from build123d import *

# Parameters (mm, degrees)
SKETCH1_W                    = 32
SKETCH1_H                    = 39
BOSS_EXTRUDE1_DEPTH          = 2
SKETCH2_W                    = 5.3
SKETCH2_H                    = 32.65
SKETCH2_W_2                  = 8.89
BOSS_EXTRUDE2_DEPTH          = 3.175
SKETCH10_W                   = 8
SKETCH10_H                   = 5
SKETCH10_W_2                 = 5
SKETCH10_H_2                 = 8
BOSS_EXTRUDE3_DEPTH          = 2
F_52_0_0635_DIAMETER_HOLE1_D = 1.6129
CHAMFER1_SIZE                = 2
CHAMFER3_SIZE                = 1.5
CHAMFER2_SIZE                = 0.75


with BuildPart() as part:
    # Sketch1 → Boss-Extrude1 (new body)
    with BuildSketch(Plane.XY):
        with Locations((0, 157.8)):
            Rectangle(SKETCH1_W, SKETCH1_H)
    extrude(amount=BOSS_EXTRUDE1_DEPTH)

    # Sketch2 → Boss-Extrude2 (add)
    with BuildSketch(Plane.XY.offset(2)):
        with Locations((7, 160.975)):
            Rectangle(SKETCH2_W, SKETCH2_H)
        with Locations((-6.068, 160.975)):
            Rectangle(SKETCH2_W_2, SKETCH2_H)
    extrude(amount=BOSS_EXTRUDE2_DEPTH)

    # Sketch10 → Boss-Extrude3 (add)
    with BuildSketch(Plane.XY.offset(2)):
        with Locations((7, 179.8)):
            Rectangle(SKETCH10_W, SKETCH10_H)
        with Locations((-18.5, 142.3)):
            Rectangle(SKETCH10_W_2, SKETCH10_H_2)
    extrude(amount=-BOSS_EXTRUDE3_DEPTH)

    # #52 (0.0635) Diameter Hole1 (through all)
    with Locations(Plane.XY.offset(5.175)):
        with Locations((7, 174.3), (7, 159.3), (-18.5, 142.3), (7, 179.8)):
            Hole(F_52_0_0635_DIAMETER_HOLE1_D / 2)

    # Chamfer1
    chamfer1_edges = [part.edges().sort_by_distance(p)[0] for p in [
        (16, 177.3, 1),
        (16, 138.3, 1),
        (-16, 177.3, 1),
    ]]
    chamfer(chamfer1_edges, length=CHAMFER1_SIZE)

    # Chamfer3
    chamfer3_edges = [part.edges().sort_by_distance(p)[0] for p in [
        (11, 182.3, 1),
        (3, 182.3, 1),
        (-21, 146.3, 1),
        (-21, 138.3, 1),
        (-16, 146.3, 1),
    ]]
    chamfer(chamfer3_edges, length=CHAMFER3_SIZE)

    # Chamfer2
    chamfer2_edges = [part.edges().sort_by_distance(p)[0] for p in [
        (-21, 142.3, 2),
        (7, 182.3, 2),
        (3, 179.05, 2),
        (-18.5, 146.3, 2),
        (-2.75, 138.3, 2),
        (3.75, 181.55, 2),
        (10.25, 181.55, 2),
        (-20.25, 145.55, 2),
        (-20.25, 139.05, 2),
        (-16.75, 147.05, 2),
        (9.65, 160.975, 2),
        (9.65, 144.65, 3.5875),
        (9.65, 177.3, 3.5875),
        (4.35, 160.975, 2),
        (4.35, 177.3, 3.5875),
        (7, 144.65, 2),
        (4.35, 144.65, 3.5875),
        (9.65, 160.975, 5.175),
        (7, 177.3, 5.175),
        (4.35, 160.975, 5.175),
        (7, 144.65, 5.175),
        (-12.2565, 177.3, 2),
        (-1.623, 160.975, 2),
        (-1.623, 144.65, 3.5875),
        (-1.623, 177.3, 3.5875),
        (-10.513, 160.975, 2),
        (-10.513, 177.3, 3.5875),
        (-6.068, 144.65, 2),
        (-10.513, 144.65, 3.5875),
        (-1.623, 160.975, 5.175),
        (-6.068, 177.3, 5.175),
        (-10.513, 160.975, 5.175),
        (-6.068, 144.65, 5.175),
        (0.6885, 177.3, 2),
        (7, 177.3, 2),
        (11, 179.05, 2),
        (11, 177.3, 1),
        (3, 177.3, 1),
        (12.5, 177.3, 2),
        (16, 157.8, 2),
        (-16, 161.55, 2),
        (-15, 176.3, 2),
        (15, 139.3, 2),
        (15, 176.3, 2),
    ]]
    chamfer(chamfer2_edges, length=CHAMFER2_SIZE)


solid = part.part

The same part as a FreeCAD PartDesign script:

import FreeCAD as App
import Part
import Sketcher

V = App.Vector
Q = App.Units.Quantity


def edges_at(feature, points):
    """Names of the edges that pass closest to the given points."""
    edges = feature.Shape.Edges
    near = lambda p: min(range(len(edges)), key=lambda i: edges[i].distToShape(Part.Vertex(*p))[0])
    return sorted({f"Edge{near(p) + 1}" for p in points})


def add_polygon(sketch, points):
    """Adds a closed chain of lines whose ends are joined by coincident constraints."""
    first, n = sketch.GeometryCount, len(points)
    for a, b in zip(points, points[1:] + points[:1]):
        sketch.addGeometry(Part.LineSegment(App.Vector(*a, 0), App.Vector(*b, 0)), False)
    for i in range(n):
        sketch.addConstraint(Sketcher.Constraint("Coincident", first + i, 2, first + (i + 1) % n, 1))

doc = App.newDocument("Part")
body = doc.addObject("PartDesign::Body", "Body")

# Sketch on XY plane
sketch1 = body.newObject("Sketcher::SketchObject", "Sketch")
sketch1.AttachmentSupport = (doc.getObject("XY_Plane"), [""])
sketch1.MapMode = "FlatFace"
add_polygon(sketch1, [(-16, 177.3), (-16, 138.3), (16, 138.3), (16, 177.3)])  # lines 0-3
sketch1.addConstraint([
    Sketcher.Constraint("Vertical", 0),
    Sketcher.Constraint("Horizontal", 1),
    Sketcher.Constraint("Vertical", 2),
    Sketcher.Constraint("Horizontal", 3),
    Sketcher.Constraint("DistanceX", 1, 1, 1, 2, Q("32 mm")),
    Sketcher.Constraint("DistanceY", 0, 2, 0, 1, Q("39 mm")),
    Sketcher.Constraint("DistanceX", 0, 2, -1, 1, Q("16 mm")),
    Sketcher.Constraint("DistanceY", -1, 1, 0, 2, Q("138.3 mm")),
])
pad1 = body.newObject("PartDesign::Pad", "Pad")
pad1.Profile = sketch1
pad1.Length = 2

# Sketch on XY plane
sketch2 = body.newObject("Sketcher::SketchObject", "Sketch001")
sketch2.AttachmentSupport = (doc.getObject("XY_Plane"), [""])
sketch2.MapMode = "FlatFace"
sketch2.AttachmentOffset = App.Placement(V(0, 0, 2), App.Rotation())
add_polygon(sketch2, [(4.35, 177.3), (4.35, 144.65), (9.65, 144.65), (9.65, 177.3)])  # lines 0-3
add_polygon(sketch2, [(-10.513, 177.3), (-10.513, 144.65), (-1.623, 144.65), (-1.623, 177.3)])  # lines 4-7
sketch2.addConstraint([
    Sketcher.Constraint("Vertical", 0),
    Sketcher.Constraint("Horizontal", 1),
    Sketcher.Constraint("Vertical", 2),
    Sketcher.Constraint("Horizontal", 3),
    Sketcher.Constraint("Vertical", 4),
    Sketcher.Constraint("Horizontal", 5),
    Sketcher.Constraint("Vertical", 6),
    Sketcher.Constraint("Horizontal", 7),
    Sketcher.Constraint("Horizontal", 1, 2, 4, 2),
    Sketcher.Constraint("Horizontal", 3, 2, 6, 2),
    Sketcher.Constraint("DistanceX", 1, 1, 1, 2, Q("5.3 mm")),
    Sketcher.Constraint("DistanceX", 5, 1, 5, 2, Q("8.89 mm")),
    Sketcher.Constraint("DistanceY", 0, 2, 0, 1, Q("32.65 mm")),
    Sketcher.Constraint("DistanceY", -1, 1, 2, 2, Q("177.3 mm")),
    Sketcher.Constraint("DistanceX", -1, 1, 0, 2, Q("4.35 mm")),
    Sketcher.Constraint("DistanceX", 4, 2, -1, 1, Q("10.513 mm")),
])
pad2 = body.newObject("PartDesign::Pad", "Pad001")
pad2.Profile = sketch2
pad2.Length = 3.175

# Sketch on XY plane
sketch3 = body.newObject("Sketcher::SketchObject", "Sketch002")
sketch3.AttachmentSupport = (doc.getObject("XY_Plane"), [""])
sketch3.MapMode = "FlatFace"
sketch3.AttachmentOffset = App.Placement(V(0, 0, 2), App.Rotation())
add_polygon(sketch3, [(3, 182.3), (3, 177.3), (11, 177.3), (11, 182.3)])  # lines 0-3
add_polygon(sketch3, [(-21, 146.3), (-21, 138.3), (-16, 138.3), (-16, 146.3)])  # lines 4-7
sketch3.addConstraint([
    Sketcher.Constraint("Vertical", 0),
    Sketcher.Constraint("Horizontal", 1),
    Sketcher.Constraint("Vertical", 2),
    Sketcher.Constraint("Horizontal", 3),
    Sketcher.Constraint("Vertical", 4),
    Sketcher.Constraint("Horizontal", 5),
    Sketcher.Constraint("Vertical", 6),
    Sketcher.Constraint("Horizontal", 7),
    Sketcher.Constraint("Equal", 7, 0),
    Sketcher.Constraint("Equal", 3, 4),
    Sketcher.Constraint("DistanceX", 1, 1, 1, 2, Q("8 mm")),
    Sketcher.Constraint("DistanceX", 5, 1, 5, 2, Q("5 mm")),
    Sketcher.Constraint("DistanceX", -1, 1, 0, 2, Q("3 mm")),
    Sketcher.Constraint("DistanceX", 4, 2, -1, 1, Q("21 mm")),
    Sketcher.Constraint("DistanceY", 4, 2, 0, 2, Q("39 mm")),
    Sketcher.Constraint("DistanceY", -1, 1, 0, 2, Q("177.3 mm")),
])
pad3 = body.newObject("PartDesign::Pad", "Pad002")
pad3.Profile = sketch3
pad3.Length = 2
pad3.Reversed = True

# Sketch on XY plane
sketch4 = body.newObject("Sketcher::SketchObject", "Sketch003")
sketch4.AttachmentSupport = (doc.getObject("XY_Plane"), [""])
sketch4.MapMode = "FlatFace"
sketch4.AttachmentOffset = App.Placement(V(0, 0, 5.175), App.Rotation())
sketch4.addGeometry([
    Part.Circle(V(7, 174.3, 0), V(0, 0, 1), 0.80645),
    Part.Circle(V(7, 159.3, 0), V(0, 0, 1), 0.80645),
    Part.Circle(V(-18.5, 142.3, 0), V(0, 0, 1), 0.80645),
    Part.Circle(V(7, 179.8, 0), V(0, 0, 1), 0.80645),
], False)
sketch4.addConstraint([
    Sketcher.Constraint("Equal", 0, 1),
    Sketcher.Constraint("Equal", 1, 2),
    Sketcher.Constraint("Equal", 2, 3),
    Sketcher.Constraint("Vertical", 0, 3, 1, 3),
    Sketcher.Constraint("Vertical", 1, 3, 3, 3),
    Sketcher.Constraint("DistanceX", -1, 1, 0, 3, Q("7 mm")),
    Sketcher.Constraint("DistanceY", 1, 3, 0, 3, Q("15 mm")),
    Sketcher.Constraint("DistanceY", 2, 3, 1, 3, Q("17 mm")),
    Sketcher.Constraint("Diameter", 0, Q("1.6129 mm")),
    Sketcher.Constraint("DistanceY", -1, 1, 0, 3, Q("174.3 mm")),
    Sketcher.Constraint("DistanceX", 2, 3, -1, 1, Q("18.5 mm")),
    Sketcher.Constraint("DistanceY", -1, 1, 3, 3, Q("179.8 mm")),
])
doc.recompute()
hole = body.newObject("PartDesign::Hole", "Hole")
hole.Profile = sketch4
hole.ThreadType = "None"
hole.Diameter = 1.6129
hole.DepthType = "ThroughAll"
doc.recompute()

chamfer = body.newObject("PartDesign::Chamfer", "Chamfer")
chamfer.Base = (hole, edges_at(hole, [(16, 177.3, 1), (16, 138.3, 1), (-16, 177.3, 1)]))
chamfer.Size = 2
doc.recompute()

chamfer2 = body.newObject("PartDesign::Chamfer", "Chamfer001")
chamfer2.Base = (chamfer, edges_at(chamfer, [
    (11, 182.3, 1),
    (3, 182.3, 1),
    (-21, 146.3, 1),
    (-21, 138.3, 1),
    (-16, 146.3, 1),
]))
chamfer2.Size = 1.5
doc.recompute()

chamfer3 = body.newObject("PartDesign::Chamfer", "Chamfer002")
chamfer3.Base = (chamfer2, edges_at(chamfer2, [
    (-21, 142.3, 2),
    (7, 182.3, 2),
    (3, 179.05, 2),
    (-18.5, 146.3, 2),
    (-2.75, 138.3, 2),
    (3.75, 181.55, 2),
    (10.25, 181.55, 2),
    (-20.25, 145.55, 2),
    (-20.25, 139.05, 2),
    (-16.75, 147.05, 2),
    (9.65, 160.975, 2),
    (9.65, 144.65, 3.587),
    (9.65, 177.3, 3.587),
    (4.35, 160.975, 2),
    (4.35, 177.3, 3.587),
    (7, 144.65, 2),
    (4.35, 144.65, 3.587),
    (9.65, 160.975, 5.175),
    (7, 177.3, 5.175),
    (4.35, 160.975, 5.175),
    (7, 144.65, 5.175),
    (-12.257, 177.3, 2),
    (-1.623, 160.975, 2),
    (-1.623, 144.65, 3.587),
    (-1.623, 177.3, 3.587),
    (-10.513, 160.975, 2),
    (-10.513, 177.3, 3.587),
    (-6.068, 144.65, 2),
    (-10.513, 144.65, 3.587),
    (-1.623, 160.975, 5.175),
    (-6.068, 177.3, 5.175),
    (-10.513, 160.975, 5.175),
    (-6.068, 144.65, 5.175),
    (0.689, 177.3, 2),
    (7, 177.3, 2),
    (11, 179.05, 2),
    (11, 177.3, 1),
    (3, 177.3, 1),
    (12.5, 177.3, 2),
    (16, 157.8, 2),
    (-16, 161.55, 2),
    (-15, 176.3, 2),
    (15, 139.3, 2),
    (15, 176.3, 2),
]))
chamfer3.Size = 0.75

doc.recompute()
